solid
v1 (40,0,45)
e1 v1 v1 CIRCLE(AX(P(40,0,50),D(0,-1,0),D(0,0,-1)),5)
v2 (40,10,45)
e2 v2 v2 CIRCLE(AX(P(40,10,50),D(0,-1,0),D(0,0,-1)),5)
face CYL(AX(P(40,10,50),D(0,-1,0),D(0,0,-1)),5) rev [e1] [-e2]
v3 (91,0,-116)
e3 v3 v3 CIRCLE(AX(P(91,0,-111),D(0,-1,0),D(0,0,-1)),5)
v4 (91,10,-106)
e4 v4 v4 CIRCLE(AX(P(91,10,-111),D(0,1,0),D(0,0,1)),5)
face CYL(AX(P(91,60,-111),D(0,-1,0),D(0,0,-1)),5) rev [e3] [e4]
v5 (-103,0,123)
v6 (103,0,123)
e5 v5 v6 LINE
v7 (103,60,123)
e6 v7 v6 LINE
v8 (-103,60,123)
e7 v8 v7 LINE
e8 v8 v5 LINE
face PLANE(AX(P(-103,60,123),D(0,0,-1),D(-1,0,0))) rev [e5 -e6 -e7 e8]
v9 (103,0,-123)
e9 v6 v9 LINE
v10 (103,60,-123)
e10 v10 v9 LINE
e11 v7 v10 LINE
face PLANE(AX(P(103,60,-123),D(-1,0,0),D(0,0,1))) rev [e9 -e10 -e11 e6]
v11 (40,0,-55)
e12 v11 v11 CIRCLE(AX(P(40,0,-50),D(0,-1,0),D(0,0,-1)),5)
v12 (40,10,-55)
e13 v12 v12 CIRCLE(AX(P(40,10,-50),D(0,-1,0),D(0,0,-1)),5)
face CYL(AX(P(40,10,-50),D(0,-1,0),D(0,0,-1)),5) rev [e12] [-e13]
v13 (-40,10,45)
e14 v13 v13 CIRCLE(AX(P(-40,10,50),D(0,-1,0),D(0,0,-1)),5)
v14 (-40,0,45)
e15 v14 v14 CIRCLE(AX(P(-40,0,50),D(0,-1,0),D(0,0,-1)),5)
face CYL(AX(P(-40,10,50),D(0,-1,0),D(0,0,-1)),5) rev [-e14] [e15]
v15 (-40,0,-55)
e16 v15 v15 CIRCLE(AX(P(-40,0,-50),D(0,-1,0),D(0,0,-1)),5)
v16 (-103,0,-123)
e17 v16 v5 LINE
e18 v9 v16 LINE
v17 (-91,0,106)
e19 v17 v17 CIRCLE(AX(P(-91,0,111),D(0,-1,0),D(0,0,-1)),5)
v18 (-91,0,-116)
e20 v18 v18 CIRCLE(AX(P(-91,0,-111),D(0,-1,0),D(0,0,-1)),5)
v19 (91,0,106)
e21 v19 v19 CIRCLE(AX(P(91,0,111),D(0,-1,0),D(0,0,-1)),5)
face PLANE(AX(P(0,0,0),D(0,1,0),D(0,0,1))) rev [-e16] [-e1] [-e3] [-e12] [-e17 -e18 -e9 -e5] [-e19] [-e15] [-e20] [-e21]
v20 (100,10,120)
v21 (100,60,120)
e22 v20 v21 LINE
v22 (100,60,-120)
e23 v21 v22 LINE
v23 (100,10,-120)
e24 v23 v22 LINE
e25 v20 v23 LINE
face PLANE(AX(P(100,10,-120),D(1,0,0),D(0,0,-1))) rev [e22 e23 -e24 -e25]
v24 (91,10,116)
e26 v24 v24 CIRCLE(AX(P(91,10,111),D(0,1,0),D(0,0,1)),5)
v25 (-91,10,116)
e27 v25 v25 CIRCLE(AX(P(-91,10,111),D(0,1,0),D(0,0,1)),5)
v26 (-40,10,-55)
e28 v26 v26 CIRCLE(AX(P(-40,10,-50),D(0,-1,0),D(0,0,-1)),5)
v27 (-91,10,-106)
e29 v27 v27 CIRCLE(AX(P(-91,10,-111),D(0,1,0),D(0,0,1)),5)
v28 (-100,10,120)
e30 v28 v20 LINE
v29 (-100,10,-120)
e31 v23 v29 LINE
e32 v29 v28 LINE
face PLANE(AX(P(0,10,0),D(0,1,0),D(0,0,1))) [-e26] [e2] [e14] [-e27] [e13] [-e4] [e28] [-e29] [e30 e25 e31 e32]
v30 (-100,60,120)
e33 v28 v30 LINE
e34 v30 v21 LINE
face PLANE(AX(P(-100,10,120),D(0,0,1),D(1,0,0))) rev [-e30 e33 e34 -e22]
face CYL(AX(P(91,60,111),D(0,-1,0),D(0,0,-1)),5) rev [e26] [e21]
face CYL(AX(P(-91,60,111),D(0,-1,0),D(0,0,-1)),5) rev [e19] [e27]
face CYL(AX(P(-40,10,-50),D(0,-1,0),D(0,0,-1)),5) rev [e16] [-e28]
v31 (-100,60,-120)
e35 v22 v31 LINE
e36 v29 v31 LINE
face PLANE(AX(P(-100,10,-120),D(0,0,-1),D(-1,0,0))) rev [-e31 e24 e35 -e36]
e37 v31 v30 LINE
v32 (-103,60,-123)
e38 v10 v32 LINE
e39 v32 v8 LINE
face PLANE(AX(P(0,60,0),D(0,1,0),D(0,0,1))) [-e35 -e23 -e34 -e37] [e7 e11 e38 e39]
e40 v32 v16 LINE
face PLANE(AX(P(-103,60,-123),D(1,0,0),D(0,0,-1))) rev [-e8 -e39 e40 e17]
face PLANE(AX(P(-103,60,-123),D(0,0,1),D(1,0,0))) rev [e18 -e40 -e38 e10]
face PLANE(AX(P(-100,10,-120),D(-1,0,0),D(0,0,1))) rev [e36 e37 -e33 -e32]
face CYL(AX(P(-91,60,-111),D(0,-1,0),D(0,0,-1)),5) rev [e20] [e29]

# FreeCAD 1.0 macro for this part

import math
import FreeCAD as App
import Part
import Sketcher

V = App.Vector

doc = App.newDocument("Part")
body = doc.addObject("PartDesign::Body", "Body")

# Sketch on XZ plane
sketch1 = doc.addObject("Sketcher::SketchObject", "Sketch")
body.addObject(sketch1)
sketch1.AttachmentSupport = (doc.XZ_Plane, [""])
sketch1.MapMode = "FlatFace"
sketch1.addGeometry(Part.LineSegment(V(-103, -123, 0), V(-103, 123, 0)), False)
sketch1.addGeometry(Part.LineSegment(V(-103, 123, 0), V(103, 123, 0)), False)
sketch1.addGeometry(Part.LineSegment(V(103, 123, 0), V(103, -123, 0)), False)
sketch1.addGeometry(Part.LineSegment(V(103, -123, 0), V(-103, -123, 0)), False)
sketch1.addConstraint(Sketcher.Constraint("Coincident", 0, 2, 1, 1))
sketch1.addConstraint(Sketcher.Constraint("Coincident", 1, 2, 2, 1))
sketch1.addConstraint(Sketcher.Constraint("Coincident", 2, 2, 3, 1))
sketch1.addConstraint(Sketcher.Constraint("Coincident", 3, 2, 0, 1))
sketch1.addConstraint(Sketcher.Constraint("Vertical", 0))
sketch1.addConstraint(Sketcher.Constraint("Horizontal", 1))
sketch1.addConstraint(Sketcher.Constraint("Vertical", 2))
sketch1.addConstraint(Sketcher.Constraint("Horizontal", 3))
sketch1.addConstraint(Sketcher.Constraint("Symmetric", 0, 2, 2, 2, -1, 1))
sketch1.addConstraint(Sketcher.Constraint("DistanceX", 1, 1, 1, 2, 206.0))
sketch1.addConstraint(Sketcher.Constraint("DistanceY", 0, 1, 0, 2, 246.0))
pad1 = doc.addObject("PartDesign::Pad", "Pad")
body.addObject(pad1)
pad1.Profile = sketch1
pad1.Length = 60
pad1.Reversed = True

# Sketch on XZ plane
sketch2 = doc.addObject("Sketcher::SketchObject", "Sketch001")
body.addObject(sketch2)
sketch2.AttachmentSupport = (doc.XZ_Plane, [""])
sketch2.MapMode = "FlatFace"
sketch2.AttachmentOffset = App.Placement(V(0, 0, -60), App.Rotation())
sketch2.addGeometry(Part.LineSegment(V(-100, -120, 0), V(-100, 120, 0)), False)
sketch2.addGeometry(Part.LineSegment(V(-100, 120, 0), V(100, 120, 0)), False)
sketch2.addGeometry(Part.LineSegment(V(100, 120, 0), V(100, -120, 0)), False)
sketch2.addGeometry(Part.LineSegment(V(100, -120, 0), V(-100, -120, 0)), False)
sketch2.addConstraint(Sketcher.Constraint("Coincident", 0, 2, 1, 1))
sketch2.addConstraint(Sketcher.Constraint("Coincident", 1, 2, 2, 1))
sketch2.addConstraint(Sketcher.Constraint("Coincident", 2, 2, 3, 1))
sketch2.addConstraint(Sketcher.Constraint("Coincident", 3, 2, 0, 1))
sketch2.addConstraint(Sketcher.Constraint("Vertical", 0))
sketch2.addConstraint(Sketcher.Constraint("Horizontal", 1))
sketch2.addConstraint(Sketcher.Constraint("Vertical", 2))
sketch2.addConstraint(Sketcher.Constraint("Horizontal", 3))
sketch2.addConstraint(Sketcher.Constraint("Symmetric", 0, 2, 2, 2, -1, 1))
sketch2.addConstraint(Sketcher.Constraint("DistanceX", 1, 1, 1, 2, 200.0))
sketch2.addConstraint(Sketcher.Constraint("DistanceY", 0, 1, 0, 2, 240.0))
pocket1 = doc.addObject("PartDesign::Pocket", "Pocket")
body.addObject(pocket1)
pocket1.Profile = sketch2
pocket1.Length = 50
pocket1.Reversed = True

# Sketch on XZ plane
sketch3 = doc.addObject("Sketcher::SketchObject", "Sketch002")
body.addObject(sketch3)
sketch3.AttachmentSupport = (doc.XZ_Plane, [""])
sketch3.MapMode = "FlatFace"
sketch3.addGeometry(Part.ArcOfCircle(Part.Circle(V(-91, 111, 0), V(0, 0, 1), 5), math.radians(0), math.radians(270)), False)
sketch3.addGeometry(Part.ArcOfCircle(Part.Circle(V(-91, 111, 0), V(0, 0, 1), 5), math.radians(-90), math.radians(0)), False)
sketch3.addGeometry(Part.ArcOfCircle(Part.Circle(V(91, 111, 0), V(0, 0, 1), 5), math.radians(0), math.radians(180)), False)
sketch3.addGeometry(Part.ArcOfCircle(Part.Circle(V(91, 111, 0), V(0, 0, 1), 5), math.radians(180), math.radians(270)), False)
sketch3.addGeometry(Part.ArcOfCircle(Part.Circle(V(91, 111, 0), V(0, 0, 1), 5), math.radians(-90), math.radians(0)), False)
sketch3.addGeometry(Part.ArcOfCircle(Part.Circle(V(91, -111, 0), V(0, 0, 1), 5), math.radians(0), math.radians(90)), False)
sketch3.addGeometry(Part.ArcOfCircle(Part.Circle(V(91, -111, 0), V(0, 0, 1), 5), math.radians(90), math.radians(180)), False)
sketch3.addGeometry(Part.ArcOfCircle(Part.Circle(V(91, -111, 0), V(0, 0, 1), 5), math.radians(180), math.radians(360)), False)
sketch3.addGeometry(Part.ArcOfCircle(Part.Circle(V(-91, -111, 0), V(0, 0, 1), 5), math.radians(0), math.radians(90)), False)
sketch3.addGeometry(Part.ArcOfCircle(Part.Circle(V(-91, -111, 0), V(0, 0, 1), 5), math.radians(90), math.radians(360)), False)
sketch3.addConstraint(Sketcher.Constraint("Tangent", 0, 1, 1, 2))
sketch3.addConstraint(Sketcher.Constraint("Coincident", 1, 1, 0, 2))
sketch3.addConstraint(Sketcher.Constraint("Tangent", 2, 2, 3, 1))
sketch3.addConstraint(Sketcher.Constraint("Tangent", 3, 2, 4, 1))
sketch3.addConstraint(Sketcher.Constraint("Tangent", 4, 2, 2, 1))
sketch3.addConstraint(Sketcher.Constraint("Tangent", 5, 2, 6, 1))
sketch3.addConstraint(Sketcher.Constraint("Tangent", 6, 2, 7, 1))
sketch3.addConstraint(Sketcher.Constraint("Tangent", 7, 2, 5, 1))
sketch3.addConstraint(Sketcher.Constraint("Tangent", 8, 1, 9, 2))
sketch3.addConstraint(Sketcher.Constraint("Coincident", 9, 1, 8, 2))
sketch3.addConstraint(Sketcher.Constraint("Equal", 1, 2))
sketch3.addConstraint(Sketcher.Constraint("Equal", 4, 5))
sketch3.addConstraint(Sketcher.Constraint("Equal", 7, 8))
sketch3.addConstraint(Sketcher.Constraint("Symmetric", 0, 3, 5, 3, -1, 1))
sketch3.addConstraint(Sketcher.Constraint("Symmetric", 2, 3, 8, 3, -1, 1))
sketch3.addConstraint(Sketcher.Constraint("Symmetric", 0, 3, 2, 3, -2))
sketch3.addConstraint(Sketcher.Constraint("Horizontal", 4, 3, 0, 1))
sketch3.addConstraint(Sketcher.Constraint("Horizontal", 0, 1, 2, 2))
sketch3.addConstraint(Sketcher.Constraint("Horizontal", 2, 2, 4, 2))
sketch3.addConstraint(Sketcher.Constraint("Horizontal", 9, 3, 6, 2))
sketch3.addConstraint(Sketcher.Constraint("Horizontal", 6, 2, 7, 2))
sketch3.addConstraint(Sketcher.Constraint("Horizontal", 7, 2, 8, 1))
sketch3.addConstraint(Sketcher.Constraint("Vertical", 9, 3, 1, 1))
sketch3.addConstraint(Sketcher.Constraint("Vertical", 7, 3, 3, 2))
sketch3.addConstraint(Sketcher.Constraint("Vertical", 3, 2, 5, 2))
sketch3.addConstraint(Sketcher.Constraint("Vertical", 1, 1, 9, 1))
sketch3.addConstraint(Sketcher.Constraint("Radius", 0, 5.0))
sketch3.addConstraint(Sketcher.Constraint("DistanceX", 0, 3, -1, 1, 91.0))
sketch3.addConstraint(Sketcher.Constraint("DistanceY", -1, 1, 0, 3, 111.0))
pocket2 = doc.addObject("PartDesign::Pocket", "Pocket001")
body.addObject(pocket2)
pocket2.Profile = sketch3
pocket2.Type = "ThroughAll"

# Sketch on XZ plane
sketch4 = doc.addObject("Sketcher::SketchObject", "Sketch003")
body.addObject(sketch4)
sketch4.AttachmentSupport = (doc.XZ_Plane, [""])
sketch4.MapMode = "FlatFace"
sketch4.addGeometry(Part.Circle(V(40, -50, 0), V(0, 0, 1), 5), False)
sketch4.addGeometry(Part.Circle(V(-40, -50, 0), V(0, 0, 1), 5), False)
sketch4.addGeometry(Part.Circle(V(-40, 50, 0), V(0, 0, 1), 5), False)
sketch4.addGeometry(Part.Circle(V(40, 50, 0), V(0, 0, 1), 5), False)
sketch4.addConstraint(Sketcher.Constraint("Equal", 0, 1))
sketch4.addConstraint(Sketcher.Constraint("Equal", 1, 2))
sketch4.addConstraint(Sketcher.Constraint("Equal", 2, 3))
sketch4.addConstraint(Sketcher.Constraint("Symmetric", 0, 3, 2, 3, -1, 1))
sketch4.addConstraint(Sketcher.Constraint("Symmetric", 1, 3, 3, 3, -1, 1))
sketch4.addConstraint(Sketcher.Constraint("Symmetric", 0, 3, 1, 3, -2))
sketch4.addConstraint(Sketcher.Constraint("Diameter", 0, 10.0))
sketch4.addConstraint(Sketcher.Constraint("DistanceX", -1, 1, 0, 3, 40.0))
sketch4.addConstraint(Sketcher.Constraint("DistanceY", 0, 3, -1, 1, 50.0))
pocket3 = doc.addObject("PartDesign::Pocket", "Pocket002")
body.addObject(pocket3)
pocket3.Profile = sketch4
pocket3.Length = 10

doc.recompute()
